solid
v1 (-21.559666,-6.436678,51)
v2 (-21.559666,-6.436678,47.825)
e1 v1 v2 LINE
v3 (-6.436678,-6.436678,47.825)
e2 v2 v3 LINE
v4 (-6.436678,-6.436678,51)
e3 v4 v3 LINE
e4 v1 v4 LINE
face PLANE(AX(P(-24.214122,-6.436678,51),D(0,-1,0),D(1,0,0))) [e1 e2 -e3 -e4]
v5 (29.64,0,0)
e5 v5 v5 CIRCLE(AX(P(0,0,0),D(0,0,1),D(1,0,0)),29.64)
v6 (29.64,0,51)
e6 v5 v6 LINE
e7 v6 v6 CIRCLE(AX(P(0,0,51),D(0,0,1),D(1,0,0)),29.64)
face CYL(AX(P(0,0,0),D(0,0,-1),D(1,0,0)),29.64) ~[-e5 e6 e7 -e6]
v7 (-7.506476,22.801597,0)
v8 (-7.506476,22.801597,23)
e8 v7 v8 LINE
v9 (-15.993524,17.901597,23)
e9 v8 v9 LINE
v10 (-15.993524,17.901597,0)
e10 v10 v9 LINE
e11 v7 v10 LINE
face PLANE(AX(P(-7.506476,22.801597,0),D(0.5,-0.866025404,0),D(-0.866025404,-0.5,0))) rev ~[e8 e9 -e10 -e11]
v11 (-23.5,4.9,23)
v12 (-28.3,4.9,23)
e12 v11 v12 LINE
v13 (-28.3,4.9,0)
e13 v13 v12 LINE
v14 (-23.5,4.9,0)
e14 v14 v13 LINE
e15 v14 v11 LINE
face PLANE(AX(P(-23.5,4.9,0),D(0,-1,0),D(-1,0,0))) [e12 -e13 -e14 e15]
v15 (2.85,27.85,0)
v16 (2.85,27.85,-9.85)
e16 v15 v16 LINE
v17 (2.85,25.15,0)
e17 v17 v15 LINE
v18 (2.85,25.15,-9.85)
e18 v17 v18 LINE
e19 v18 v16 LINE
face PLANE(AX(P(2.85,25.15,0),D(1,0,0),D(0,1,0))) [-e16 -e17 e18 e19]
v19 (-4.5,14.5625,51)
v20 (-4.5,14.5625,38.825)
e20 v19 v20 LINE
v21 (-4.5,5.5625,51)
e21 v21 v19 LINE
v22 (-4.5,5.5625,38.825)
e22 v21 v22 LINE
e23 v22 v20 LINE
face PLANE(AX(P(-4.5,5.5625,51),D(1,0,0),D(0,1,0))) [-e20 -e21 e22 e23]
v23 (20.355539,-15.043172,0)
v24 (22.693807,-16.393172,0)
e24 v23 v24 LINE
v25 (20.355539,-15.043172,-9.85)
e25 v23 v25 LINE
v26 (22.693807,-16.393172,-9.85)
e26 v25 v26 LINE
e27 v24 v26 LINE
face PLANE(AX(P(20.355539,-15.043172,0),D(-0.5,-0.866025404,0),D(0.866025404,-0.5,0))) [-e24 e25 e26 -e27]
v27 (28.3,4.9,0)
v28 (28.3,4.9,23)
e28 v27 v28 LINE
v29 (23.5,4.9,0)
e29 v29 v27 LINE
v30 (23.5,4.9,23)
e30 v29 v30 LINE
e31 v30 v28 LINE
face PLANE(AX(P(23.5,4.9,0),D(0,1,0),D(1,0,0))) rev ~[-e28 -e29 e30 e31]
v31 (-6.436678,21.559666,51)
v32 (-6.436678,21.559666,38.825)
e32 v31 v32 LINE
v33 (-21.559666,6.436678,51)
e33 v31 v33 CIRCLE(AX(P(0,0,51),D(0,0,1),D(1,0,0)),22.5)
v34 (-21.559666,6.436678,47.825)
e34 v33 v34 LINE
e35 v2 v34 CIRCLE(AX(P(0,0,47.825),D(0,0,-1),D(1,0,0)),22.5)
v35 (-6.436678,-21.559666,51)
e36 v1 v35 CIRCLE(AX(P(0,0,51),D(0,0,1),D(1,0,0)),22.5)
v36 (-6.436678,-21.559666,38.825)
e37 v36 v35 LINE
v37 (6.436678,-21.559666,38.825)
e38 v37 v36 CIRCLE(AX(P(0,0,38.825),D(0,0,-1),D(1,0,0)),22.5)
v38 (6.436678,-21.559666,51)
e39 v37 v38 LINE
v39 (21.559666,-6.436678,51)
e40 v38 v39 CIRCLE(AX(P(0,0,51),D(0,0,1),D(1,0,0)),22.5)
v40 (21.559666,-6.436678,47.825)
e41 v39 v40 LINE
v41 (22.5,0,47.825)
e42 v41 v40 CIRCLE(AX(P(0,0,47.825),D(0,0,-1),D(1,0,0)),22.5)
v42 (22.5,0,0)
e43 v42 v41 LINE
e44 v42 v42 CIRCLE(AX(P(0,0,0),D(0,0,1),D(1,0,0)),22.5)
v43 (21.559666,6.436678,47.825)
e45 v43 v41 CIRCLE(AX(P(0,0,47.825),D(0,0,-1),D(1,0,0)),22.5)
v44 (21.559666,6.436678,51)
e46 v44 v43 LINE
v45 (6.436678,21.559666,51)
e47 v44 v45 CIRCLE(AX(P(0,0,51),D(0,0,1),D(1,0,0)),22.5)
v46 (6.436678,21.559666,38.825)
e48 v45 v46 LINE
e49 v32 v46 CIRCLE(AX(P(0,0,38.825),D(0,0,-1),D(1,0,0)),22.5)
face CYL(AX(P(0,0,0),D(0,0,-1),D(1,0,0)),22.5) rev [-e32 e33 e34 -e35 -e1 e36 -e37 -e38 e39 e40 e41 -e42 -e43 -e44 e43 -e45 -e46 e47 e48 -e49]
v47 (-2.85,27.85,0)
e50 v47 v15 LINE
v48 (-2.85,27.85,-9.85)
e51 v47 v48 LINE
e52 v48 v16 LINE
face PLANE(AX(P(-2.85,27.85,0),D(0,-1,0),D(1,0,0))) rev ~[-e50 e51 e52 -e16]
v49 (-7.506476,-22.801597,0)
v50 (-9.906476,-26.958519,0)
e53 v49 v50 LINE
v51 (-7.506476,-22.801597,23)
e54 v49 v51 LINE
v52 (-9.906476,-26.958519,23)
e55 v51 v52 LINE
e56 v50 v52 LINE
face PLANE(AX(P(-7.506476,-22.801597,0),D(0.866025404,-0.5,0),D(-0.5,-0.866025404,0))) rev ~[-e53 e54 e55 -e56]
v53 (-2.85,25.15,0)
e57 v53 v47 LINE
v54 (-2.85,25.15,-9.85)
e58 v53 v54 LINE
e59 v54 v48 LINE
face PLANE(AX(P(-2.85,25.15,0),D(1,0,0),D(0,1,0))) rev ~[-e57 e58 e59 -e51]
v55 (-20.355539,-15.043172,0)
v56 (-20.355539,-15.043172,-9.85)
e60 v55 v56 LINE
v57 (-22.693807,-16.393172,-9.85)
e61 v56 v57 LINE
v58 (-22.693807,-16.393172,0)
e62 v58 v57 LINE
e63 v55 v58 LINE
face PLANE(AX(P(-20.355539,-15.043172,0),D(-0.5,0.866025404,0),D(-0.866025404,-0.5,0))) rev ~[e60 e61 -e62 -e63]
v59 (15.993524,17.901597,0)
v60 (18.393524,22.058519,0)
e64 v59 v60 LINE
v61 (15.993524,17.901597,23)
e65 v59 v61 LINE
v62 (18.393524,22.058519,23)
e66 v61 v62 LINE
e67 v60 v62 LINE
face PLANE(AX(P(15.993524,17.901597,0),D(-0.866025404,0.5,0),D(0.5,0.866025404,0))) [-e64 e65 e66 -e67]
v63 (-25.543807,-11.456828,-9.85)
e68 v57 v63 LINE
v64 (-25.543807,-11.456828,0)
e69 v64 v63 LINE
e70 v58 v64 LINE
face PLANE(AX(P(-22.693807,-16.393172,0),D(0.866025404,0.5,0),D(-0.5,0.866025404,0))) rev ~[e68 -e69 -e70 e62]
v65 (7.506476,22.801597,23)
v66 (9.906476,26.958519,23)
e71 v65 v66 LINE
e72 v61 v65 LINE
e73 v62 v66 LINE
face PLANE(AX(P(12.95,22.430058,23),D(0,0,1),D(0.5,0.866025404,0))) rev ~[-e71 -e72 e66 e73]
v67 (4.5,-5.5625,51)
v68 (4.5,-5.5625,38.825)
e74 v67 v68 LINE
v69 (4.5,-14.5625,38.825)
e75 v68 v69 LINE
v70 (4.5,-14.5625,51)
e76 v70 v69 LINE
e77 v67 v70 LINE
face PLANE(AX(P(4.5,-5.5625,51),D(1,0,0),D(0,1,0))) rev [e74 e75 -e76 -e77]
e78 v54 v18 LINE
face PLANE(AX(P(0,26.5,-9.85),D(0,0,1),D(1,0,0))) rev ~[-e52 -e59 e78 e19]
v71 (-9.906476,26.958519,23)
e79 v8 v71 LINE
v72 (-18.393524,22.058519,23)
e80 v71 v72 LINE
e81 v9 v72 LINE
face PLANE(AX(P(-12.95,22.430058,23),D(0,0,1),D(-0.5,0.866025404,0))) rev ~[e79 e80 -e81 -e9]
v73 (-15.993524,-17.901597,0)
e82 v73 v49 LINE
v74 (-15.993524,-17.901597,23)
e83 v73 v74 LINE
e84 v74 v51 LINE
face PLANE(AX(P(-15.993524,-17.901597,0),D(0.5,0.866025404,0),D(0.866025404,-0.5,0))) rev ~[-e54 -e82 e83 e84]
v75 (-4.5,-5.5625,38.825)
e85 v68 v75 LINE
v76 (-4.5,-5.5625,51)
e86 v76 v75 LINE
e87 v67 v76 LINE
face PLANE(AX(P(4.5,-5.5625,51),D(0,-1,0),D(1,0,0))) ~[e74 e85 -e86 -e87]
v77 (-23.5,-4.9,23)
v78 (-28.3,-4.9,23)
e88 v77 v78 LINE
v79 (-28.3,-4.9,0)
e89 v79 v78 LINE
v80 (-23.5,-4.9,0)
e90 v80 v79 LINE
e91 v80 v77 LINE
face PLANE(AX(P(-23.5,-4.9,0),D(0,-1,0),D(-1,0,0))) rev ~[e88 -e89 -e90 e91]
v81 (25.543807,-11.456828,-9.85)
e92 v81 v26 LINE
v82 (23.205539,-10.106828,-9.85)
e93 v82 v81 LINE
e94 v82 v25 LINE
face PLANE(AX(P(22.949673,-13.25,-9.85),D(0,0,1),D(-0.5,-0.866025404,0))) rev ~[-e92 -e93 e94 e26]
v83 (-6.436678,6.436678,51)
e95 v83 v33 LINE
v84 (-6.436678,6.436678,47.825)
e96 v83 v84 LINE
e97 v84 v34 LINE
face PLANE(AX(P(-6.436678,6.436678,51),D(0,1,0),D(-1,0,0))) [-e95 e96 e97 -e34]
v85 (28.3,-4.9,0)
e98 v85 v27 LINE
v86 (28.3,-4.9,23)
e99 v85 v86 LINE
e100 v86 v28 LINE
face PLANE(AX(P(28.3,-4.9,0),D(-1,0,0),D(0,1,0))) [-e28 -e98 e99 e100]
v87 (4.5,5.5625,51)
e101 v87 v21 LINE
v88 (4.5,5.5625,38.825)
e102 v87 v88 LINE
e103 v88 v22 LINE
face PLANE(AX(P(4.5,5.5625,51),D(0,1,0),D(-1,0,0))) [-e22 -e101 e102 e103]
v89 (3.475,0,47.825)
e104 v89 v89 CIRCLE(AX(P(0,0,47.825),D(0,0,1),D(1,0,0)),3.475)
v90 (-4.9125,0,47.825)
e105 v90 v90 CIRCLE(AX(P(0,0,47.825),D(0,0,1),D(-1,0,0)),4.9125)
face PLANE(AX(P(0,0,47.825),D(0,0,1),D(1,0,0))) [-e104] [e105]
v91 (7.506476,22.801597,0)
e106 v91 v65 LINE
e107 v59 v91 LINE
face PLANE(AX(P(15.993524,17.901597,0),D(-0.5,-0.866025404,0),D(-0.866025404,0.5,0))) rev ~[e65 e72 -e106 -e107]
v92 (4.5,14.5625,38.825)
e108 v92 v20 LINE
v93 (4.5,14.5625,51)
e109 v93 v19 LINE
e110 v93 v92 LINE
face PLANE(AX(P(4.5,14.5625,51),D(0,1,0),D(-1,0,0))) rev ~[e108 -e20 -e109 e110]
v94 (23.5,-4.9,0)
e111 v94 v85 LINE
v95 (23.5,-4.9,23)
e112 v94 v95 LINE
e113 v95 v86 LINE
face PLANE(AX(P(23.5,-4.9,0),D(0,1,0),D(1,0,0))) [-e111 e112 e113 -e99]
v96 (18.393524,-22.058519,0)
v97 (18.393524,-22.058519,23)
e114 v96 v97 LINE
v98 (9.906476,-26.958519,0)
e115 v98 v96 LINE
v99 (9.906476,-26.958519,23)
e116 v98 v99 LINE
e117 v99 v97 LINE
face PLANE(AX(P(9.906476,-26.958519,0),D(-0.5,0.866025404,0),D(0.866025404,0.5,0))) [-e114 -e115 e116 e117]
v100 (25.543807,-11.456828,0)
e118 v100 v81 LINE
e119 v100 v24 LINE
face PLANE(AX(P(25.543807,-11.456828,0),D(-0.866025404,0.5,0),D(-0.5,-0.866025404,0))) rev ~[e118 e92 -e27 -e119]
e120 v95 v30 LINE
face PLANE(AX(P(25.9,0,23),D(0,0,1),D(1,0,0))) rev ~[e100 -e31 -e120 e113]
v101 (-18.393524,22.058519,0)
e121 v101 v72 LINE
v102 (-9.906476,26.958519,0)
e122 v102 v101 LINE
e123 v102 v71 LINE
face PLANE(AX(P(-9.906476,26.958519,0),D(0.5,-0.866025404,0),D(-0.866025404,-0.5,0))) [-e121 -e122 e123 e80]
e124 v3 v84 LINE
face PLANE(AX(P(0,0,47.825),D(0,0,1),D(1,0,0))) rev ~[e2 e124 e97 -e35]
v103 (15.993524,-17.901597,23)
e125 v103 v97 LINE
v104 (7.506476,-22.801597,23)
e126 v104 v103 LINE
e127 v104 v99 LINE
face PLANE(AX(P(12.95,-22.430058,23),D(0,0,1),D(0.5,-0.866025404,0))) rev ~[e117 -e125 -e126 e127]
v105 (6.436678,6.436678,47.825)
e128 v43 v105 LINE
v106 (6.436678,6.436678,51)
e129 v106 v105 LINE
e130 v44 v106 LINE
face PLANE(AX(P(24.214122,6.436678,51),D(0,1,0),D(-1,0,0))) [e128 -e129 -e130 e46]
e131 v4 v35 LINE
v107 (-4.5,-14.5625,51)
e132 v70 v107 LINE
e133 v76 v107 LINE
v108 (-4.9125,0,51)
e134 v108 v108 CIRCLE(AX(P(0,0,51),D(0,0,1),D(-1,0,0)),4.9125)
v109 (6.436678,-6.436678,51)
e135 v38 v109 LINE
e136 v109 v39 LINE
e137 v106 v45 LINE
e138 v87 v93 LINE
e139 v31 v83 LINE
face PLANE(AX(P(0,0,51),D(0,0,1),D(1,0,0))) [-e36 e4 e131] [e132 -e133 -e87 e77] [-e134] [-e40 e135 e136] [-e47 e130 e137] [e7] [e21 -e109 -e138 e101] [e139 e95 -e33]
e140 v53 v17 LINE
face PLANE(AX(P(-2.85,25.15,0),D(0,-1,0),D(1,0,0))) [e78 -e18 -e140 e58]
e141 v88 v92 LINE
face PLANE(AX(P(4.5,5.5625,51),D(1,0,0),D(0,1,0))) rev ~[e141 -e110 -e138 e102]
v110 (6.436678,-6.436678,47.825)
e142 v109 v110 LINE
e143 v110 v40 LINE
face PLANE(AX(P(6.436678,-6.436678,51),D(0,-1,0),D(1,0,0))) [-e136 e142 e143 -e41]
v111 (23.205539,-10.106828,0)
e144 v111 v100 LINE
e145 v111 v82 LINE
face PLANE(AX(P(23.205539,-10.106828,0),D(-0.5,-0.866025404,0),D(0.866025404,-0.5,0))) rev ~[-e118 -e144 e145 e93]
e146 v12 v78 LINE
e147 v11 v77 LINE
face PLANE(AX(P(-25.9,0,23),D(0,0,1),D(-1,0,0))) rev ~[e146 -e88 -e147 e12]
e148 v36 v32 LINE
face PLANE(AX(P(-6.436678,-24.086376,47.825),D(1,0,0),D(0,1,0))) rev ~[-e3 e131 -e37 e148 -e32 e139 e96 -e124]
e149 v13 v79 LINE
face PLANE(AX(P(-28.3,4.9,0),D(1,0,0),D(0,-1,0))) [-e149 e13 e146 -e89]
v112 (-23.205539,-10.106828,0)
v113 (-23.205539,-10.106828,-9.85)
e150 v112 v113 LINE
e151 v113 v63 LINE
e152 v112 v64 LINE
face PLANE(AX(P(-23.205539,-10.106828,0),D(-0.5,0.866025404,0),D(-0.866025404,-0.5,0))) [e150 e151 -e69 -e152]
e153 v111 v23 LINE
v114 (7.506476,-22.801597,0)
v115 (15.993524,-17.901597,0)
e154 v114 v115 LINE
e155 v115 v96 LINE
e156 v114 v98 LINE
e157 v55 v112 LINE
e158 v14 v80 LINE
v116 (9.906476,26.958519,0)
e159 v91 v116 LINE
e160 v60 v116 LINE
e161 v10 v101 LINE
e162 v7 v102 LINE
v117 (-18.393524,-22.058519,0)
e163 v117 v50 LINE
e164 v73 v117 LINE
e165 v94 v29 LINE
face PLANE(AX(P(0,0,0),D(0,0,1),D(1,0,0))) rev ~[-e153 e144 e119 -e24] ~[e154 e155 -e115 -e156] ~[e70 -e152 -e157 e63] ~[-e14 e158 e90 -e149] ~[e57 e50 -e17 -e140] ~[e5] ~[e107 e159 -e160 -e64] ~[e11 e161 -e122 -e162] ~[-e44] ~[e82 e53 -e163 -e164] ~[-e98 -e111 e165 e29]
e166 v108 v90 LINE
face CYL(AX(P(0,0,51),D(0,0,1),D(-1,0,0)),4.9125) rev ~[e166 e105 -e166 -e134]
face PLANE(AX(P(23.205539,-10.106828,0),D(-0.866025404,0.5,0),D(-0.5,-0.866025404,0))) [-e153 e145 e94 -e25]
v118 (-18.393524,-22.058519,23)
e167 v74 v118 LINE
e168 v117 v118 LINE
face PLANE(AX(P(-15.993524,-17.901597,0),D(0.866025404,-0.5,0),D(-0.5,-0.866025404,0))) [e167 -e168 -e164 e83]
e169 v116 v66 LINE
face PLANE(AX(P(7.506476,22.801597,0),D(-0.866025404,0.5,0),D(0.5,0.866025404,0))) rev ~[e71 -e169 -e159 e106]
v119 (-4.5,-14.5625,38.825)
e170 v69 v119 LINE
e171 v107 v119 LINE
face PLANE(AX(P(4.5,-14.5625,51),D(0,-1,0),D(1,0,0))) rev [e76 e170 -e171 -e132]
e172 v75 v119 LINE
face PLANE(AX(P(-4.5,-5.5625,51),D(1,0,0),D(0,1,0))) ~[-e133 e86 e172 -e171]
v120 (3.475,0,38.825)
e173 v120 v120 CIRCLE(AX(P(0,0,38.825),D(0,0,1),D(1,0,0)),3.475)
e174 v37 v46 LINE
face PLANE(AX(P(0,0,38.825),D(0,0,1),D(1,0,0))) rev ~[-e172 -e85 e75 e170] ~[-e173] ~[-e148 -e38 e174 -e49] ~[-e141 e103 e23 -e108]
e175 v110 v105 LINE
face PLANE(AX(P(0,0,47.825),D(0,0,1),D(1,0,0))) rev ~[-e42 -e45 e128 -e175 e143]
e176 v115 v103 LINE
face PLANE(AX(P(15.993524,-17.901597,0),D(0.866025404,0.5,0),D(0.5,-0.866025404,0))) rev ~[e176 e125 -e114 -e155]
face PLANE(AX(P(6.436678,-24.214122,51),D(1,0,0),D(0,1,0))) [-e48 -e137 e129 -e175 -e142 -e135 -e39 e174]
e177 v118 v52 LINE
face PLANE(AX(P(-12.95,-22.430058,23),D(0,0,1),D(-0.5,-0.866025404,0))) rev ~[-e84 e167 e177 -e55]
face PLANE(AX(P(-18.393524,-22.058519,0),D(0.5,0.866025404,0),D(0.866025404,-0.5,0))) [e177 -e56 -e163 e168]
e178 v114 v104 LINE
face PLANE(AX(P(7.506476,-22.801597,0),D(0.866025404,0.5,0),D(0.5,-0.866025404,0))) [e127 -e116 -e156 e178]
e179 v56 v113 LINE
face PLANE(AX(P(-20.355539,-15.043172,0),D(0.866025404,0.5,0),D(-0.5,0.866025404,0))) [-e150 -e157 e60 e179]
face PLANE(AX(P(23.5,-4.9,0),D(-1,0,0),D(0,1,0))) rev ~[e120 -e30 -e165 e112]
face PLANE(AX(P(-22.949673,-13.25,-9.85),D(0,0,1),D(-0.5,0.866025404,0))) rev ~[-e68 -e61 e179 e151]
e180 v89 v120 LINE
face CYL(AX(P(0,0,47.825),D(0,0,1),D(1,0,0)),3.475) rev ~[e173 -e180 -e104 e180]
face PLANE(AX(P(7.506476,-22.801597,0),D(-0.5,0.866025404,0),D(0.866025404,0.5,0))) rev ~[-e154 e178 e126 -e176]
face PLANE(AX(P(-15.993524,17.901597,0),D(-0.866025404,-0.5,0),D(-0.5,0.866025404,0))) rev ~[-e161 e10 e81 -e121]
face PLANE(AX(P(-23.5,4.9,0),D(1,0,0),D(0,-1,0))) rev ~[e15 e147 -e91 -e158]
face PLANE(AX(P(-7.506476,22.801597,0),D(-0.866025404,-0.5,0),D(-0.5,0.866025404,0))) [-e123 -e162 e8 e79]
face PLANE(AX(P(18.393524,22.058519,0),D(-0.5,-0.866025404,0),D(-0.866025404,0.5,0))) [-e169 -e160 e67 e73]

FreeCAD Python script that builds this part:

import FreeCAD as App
import Part
import Sketcher
from FreeCAD import Vector


def add_polygon(sketch, points):
    """Adds a closed chain of lines whose ends are joined by coincident constraints."""
    first, n = sketch.GeometryCount, len(points)
    for a, b in zip(points, points[1:] + points[:1]):
        sketch.addGeometry(Part.LineSegment(App.Vector(*a, 0), App.Vector(*b, 0)), False)
    for i in range(n):
        sketch.addConstraint(Sketcher.Constraint("Coincident", first + i, 2, first + (i + 1) % n, 1))

doc = App.newDocument("Part")
params = doc.addObject("Spreadsheet::Sheet", "Params")
for row, (alias, value) in enumerate([
    ("sketch1_diameter", "45 mm"),
    ("sketch1_diameter2", "59.28 mm"),
    ("pad1_length", "51 mm"),
    ("sketch2_width", "5.7 mm"),
    ("sketch2_height", "2.7 mm"),
    ("pad2_length", "9.85 mm"),
    ("pad3_length", "3.175 mm"),
    ("pocket2_length", "74.890336 mm"),
    ("sketch6_diameter", "6.95 mm"),
    ("pad4_length", "9 mm"),
    ("sketch7_width", "4.8 mm"),
    ("sketch7_height", "9.8 mm"),
    ("pocket3_length", "23 mm"),
    ("sketch8_width", "9 mm"),
    ("pocket4_length", "29 mm"),
], start=1):
    params.set(f"A{row}", alias)
    params.set(f"B{row}", "=" + value)
    params.setAlias(f"B{row}", alias)

body = doc.addObject("PartDesign::Body", "Body")

# Sketch on XY plane
sketch1 = body.newObject("Sketcher::SketchObject", "Sketch")
sketch1.AttachmentSupport = (doc.getObject("XY_Plane"), [""])
sketch1.MapMode = "FlatFace"
sketch1.addGeometry([
    Part.Circle(Vector(0, 0, 0), Vector(0, 0, 1), 29.64),
    Part.Circle(Vector(0, 0, 0), Vector(0, 0, 1), 22.5),
], False)
sketch1.addConstraint([
    Sketcher.Constraint("Coincident", 0, 3, -1, 1),
    Sketcher.Constraint("Coincident", 1, 3, -1, 1),
    Sketcher.Constraint("Diameter", 1, 45.0),
    Sketcher.Constraint("Diameter", 0, 59.28),
])
sketch1.setExpression("Constraints[2]", "Params.sketch1_diameter")
sketch1.setExpression("Constraints[3]", "Params.sketch1_diameter2")
pad1 = body.newObject("PartDesign::Pad", "Pad")
pad1.Profile = sketch1
pad1.setExpression("Length", "Params.pad1_length")

# Sketch on XY plane
sketch2 = body.newObject("Sketcher::SketchObject", "Sketch001")
sketch2.AttachmentSupport = (doc.getObject("XY_Plane"), [""])
sketch2.MapMode = "FlatFace"
add_polygon(sketch2, [(-2.85, 27.85), (-2.85, 25.15), (2.85, 25.15), (2.85, 27.85)])  # lines 0-3
sketch2.addConstraint([
    Sketcher.Constraint("Vertical", 0),
    Sketcher.Constraint("Horizontal", 1),
    Sketcher.Constraint("Vertical", 2),
    Sketcher.Constraint("Horizontal", 3),
    Sketcher.Constraint("DistanceX", 1, 1, 1, 2, 5.7),
    Sketcher.Constraint("DistanceY", 0, 2, 0, 1, 2.7),
    Sketcher.Constraint("DistanceX", 0, 2, -1, 1, 2.85),
    Sketcher.Constraint("DistanceY", -1, 1, 0, 2, 25.15),
])
sketch2.setExpression("Constraints[8]", "Params.sketch2_width")
sketch2.setExpression("Constraints[9]", "Params.sketch2_height")
pad2 = body.newObject("PartDesign::Pad", "Pad001")
pad2.Profile = sketch2
pad2.setExpression("Length", "Params.pad2_length")
pad2.Reversed = True
doc.recompute()

polarpattern = body.newObject("PartDesign::PolarPattern", "PolarPattern")
polarpattern.Originals = [pad2]
polarpattern.Axis = (doc.getObject("Z_Axis"), [""])
polarpattern.Angle = 360
polarpattern.Occurrences = 3
body.Tip = polarpattern

# Sketch on XY plane
sketch3 = body.newObject("Sketcher::SketchObject", "Sketch002")
sketch3.AttachmentSupport = (doc.getObject("XY_Plane"), [""])
sketch3.MapMode = "FlatFace"
sketch3.AttachmentOffset = App.Placement(Vector(0, 0, 51), App.Rotation())
add_polygon(sketch3, [(-6.436678, -24.214122), (6.436678, -24.214122), (6.436678, -6.436678), (24.214122, -6.436678), (24.214122, 6.436678), (6.436678, 6.436678), (6.436678, 24.214122), (-6.436678, 24.214122), (-6.436678, 6.436678), (-24.214122, 6.436678), (-24.214122, -6.436678), (-6.436678, -6.436678)])  # lines 0-11
sketch3.addConstraint([
    Sketcher.Constraint("Horizontal", 0),
    Sketcher.Constraint("Vertical", 1),
    Sketcher.Constraint("Horizontal", 2),
    Sketcher.Constraint("Vertical", 3),
    Sketcher.Constraint("Horizontal", 4),
    Sketcher.Constraint("Vertical", 5),
    Sketcher.Constraint("Horizontal", 6),
    Sketcher.Constraint("Vertical", 7),
    Sketcher.Constraint("Horizontal", 8),
    Sketcher.Constraint("Vertical", 9),
    Sketcher.Constraint("Horizontal", 10),
    Sketcher.Constraint("Vertical", 11),
    Sketcher.Constraint("Symmetric", 0, 2, 6, 2, -1, 1),
    Sketcher.Constraint("Symmetric", 2, 2, 8, 2, -1, 1),
    Sketcher.Constraint("Symmetric", 4, 2, 10, 2, -1, 1),
    Sketcher.Constraint("Symmetric", 4, 2, 7, 2, -2),
    Sketcher.Constraint("Equal", 10, 1),
    Sketcher.Constraint("Equal", 6, 3),
    Sketcher.Constraint("DistanceY", 0, 2, 3, 2, 30.650799),
    Sketcher.Constraint("DistanceX", 0, 1, 0, 2, 12.873356),
])
pad3 = body.newObject("PartDesign::Pad", "Pad002")
pad3.Profile = sketch3
pad3.setExpression("Length", "Params.pad3_length")
pad3.Reversed = True

# Sketch on XY plane
sketch4 = body.newObject("Sketcher::SketchObject", "Sketch003")
sketch4.AttachmentSupport = (doc.getObject("XY_Plane"), [""])
sketch4.MapMode = "FlatFace"
sketch4.AttachmentOffset = App.Placement(Vector(0, 0, 51), App.Rotation())
sketch4.addGeometry(Part.Circle(Vector(0, 0, 0), Vector(0, 0, 1), 4.9125), False)
sketch4.addConstraint([
    Sketcher.Constraint("Coincident", 0, 3, -1, 1),
    Sketcher.Constraint("Diameter", 0, 9.825),
])
pocket1 = body.newObject("PartDesign::Pocket", "Pocket")
pocket1.Profile = sketch4
pocket1.Type = "UpToFirst"

# Sketch on XY plane
sketch5 = body.newObject("Sketcher::SketchObject", "Sketch004")
sketch5.AttachmentSupport = (doc.getObject("XY_Plane"), [""])
sketch5.MapMode = "FlatFace"
sketch5.AttachmentOffset = App.Placement(Vector(0, 0, 51), App.Rotation())
sketch5.addGeometry(Part.Circle(Vector(0, 0, 0), Vector(0, 0, 1), 4.9125), False)
sketch5.addConstraint([
    Sketcher.Constraint("Coincident", 0, 3, -1, 1),
    Sketcher.Constraint("Diameter", 0, 9.825),
])
pocket2 = body.newObject("PartDesign::Pocket", "Pocket001")
pocket2.Profile = sketch5
pocket2.setExpression("Length", "Params.pocket2_length")
pocket2.Reversed = True

# Sketch on XY plane
sketch6 = body.newObject("Sketcher::SketchObject", "Sketch005")
sketch6.AttachmentSupport = (doc.getObject("XY_Plane"), [""])
sketch6.MapMode = "FlatFace"
sketch6.AttachmentOffset = App.Placement(Vector(0, 0, 47.825), App.Rotation())
add_polygon(sketch6, [(-6.436678, 24.086376), (-6.436678, -24.086376), (6.436678, -24.086376), (6.436678, 24.086376)])  # lines 0-3
sketch6.addGeometry(Part.Circle(Vector(0, 0, 0), Vector(0, 0, 1), 3.475), False)  # 4
sketch6.addConstraint([
    Sketcher.Constraint("Vertical", 0),
    Sketcher.Constraint("Horizontal", 1),
    Sketcher.Constraint("Vertical", 2),
    Sketcher.Constraint("Horizontal", 3),
    Sketcher.Constraint("Coincident", 4, 3, -1, 1),
    Sketcher.Constraint("Symmetric", 0, 2, 2, 2, -1, 1),
    Sketcher.Constraint("Diameter", 4, 6.95),
    Sketcher.Constraint("DistanceX", 1, 1, 1, 2, 12.873356),
    Sketcher.Constraint("DistanceY", 0, 2, 0, 1, 48.172752),
])
sketch6.setExpression("Constraints[10]", "Params.sketch6_diameter")
pad4 = body.newObject("PartDesign::Pad", "Pad003")
pad4.Profile = sketch6
pad4.setExpression("Length", "Params.pad4_length")
pad4.Reversed = True

# Sketch on XY plane
sketch7 = body.newObject("Sketcher::SketchObject", "Sketch006")
sketch7.AttachmentSupport = (doc.getObject("XY_Plane"), [""])
sketch7.MapMode = "FlatFace"
add_polygon(sketch7, [(23.5, 4.9), (23.5, -4.9), (28.3, -4.9), (28.3, 4.9)])  # lines 0-3
sketch7.addConstraint([
    Sketcher.Constraint("Vertical", 0),
    Sketcher.Constraint("Horizontal", 1),
    Sketcher.Constraint("Vertical", 2),
    Sketcher.Constraint("Horizontal", 3),
    Sketcher.Constraint("DistanceX", 1, 1, 1, 2, 4.8),
    Sketcher.Constraint("DistanceY", 0, 2, 0, 1, 9.8),
    Sketcher.Constraint("DistanceX", -1, 1, 0, 2, 23.5),
    Sketcher.Constraint("DistanceY", 0, 2, -1, 1, 4.9),
])
sketch7.setExpression("Constraints[8]", "Params.sketch7_width")
sketch7.setExpression("Constraints[9]", "Params.sketch7_height")
pocket3 = body.newObject("PartDesign::Pocket", "Pocket002")
pocket3.Profile = sketch7
pocket3.setExpression("Length", "Params.pocket3_length")
pocket3.Reversed = True
doc.recompute()

polarpattern2 = body.newObject("PartDesign::PolarPattern", "PolarPattern001")
polarpattern2.Originals = [pocket3]
polarpattern2.Axis = (doc.getObject("Z_Axis"), [""])
polarpattern2.Angle = 360
polarpattern2.Occurrences = 6
body.Tip = polarpattern2

# Sketch on XY plane
sketch8 = body.newObject("Sketcher::SketchObject", "Sketch007")
sketch8.AttachmentSupport = (doc.getObject("XY_Plane"), [""])
sketch8.MapMode = "FlatFace"
sketch8.AttachmentOffset = App.Placement(Vector(0, 0, 51), App.Rotation())
add_polygon(sketch8, [(4.5, 14.5625), (4.5, 5.5625), (-4.5, 5.5625), (-4.5, 14.5625)])  # lines 0-3
sketch8.addConstraint([
    Sketcher.Constraint("Vertical", 0),
    Sketcher.Constraint("Horizontal", 1),
    Sketcher.Constraint("Vertical", 2),
    Sketcher.Constraint("Horizontal", 3),
    Sketcher.Constraint("Equal", 3, 0),
    Sketcher.Constraint("DistanceX", 1, 2, 1, 1, 9.0),
    Sketcher.Constraint("DistanceX", -1, 1, 0, 2, 4.5),
    Sketcher.Constraint("DistanceY", -1, 1, 0, 2, 5.5625),
])
sketch8.setExpression("Constraints[9]", "Params.sketch8_width")
pocket4 = body.newObject("PartDesign::Pocket", "Pocket003")
pocket4.Profile = sketch8
pocket4.setExpression("Length", "Params.pocket4_length")
doc.recompute()

mirrored = body.newObject("PartDesign::Mirrored", "Mirrored")
mirrored.Originals = [pocket4]
mirrored.MirrorPlane = (doc.getObject("XZ_Plane"), [""])
body.Tip = mirrored

doc.recompute()
